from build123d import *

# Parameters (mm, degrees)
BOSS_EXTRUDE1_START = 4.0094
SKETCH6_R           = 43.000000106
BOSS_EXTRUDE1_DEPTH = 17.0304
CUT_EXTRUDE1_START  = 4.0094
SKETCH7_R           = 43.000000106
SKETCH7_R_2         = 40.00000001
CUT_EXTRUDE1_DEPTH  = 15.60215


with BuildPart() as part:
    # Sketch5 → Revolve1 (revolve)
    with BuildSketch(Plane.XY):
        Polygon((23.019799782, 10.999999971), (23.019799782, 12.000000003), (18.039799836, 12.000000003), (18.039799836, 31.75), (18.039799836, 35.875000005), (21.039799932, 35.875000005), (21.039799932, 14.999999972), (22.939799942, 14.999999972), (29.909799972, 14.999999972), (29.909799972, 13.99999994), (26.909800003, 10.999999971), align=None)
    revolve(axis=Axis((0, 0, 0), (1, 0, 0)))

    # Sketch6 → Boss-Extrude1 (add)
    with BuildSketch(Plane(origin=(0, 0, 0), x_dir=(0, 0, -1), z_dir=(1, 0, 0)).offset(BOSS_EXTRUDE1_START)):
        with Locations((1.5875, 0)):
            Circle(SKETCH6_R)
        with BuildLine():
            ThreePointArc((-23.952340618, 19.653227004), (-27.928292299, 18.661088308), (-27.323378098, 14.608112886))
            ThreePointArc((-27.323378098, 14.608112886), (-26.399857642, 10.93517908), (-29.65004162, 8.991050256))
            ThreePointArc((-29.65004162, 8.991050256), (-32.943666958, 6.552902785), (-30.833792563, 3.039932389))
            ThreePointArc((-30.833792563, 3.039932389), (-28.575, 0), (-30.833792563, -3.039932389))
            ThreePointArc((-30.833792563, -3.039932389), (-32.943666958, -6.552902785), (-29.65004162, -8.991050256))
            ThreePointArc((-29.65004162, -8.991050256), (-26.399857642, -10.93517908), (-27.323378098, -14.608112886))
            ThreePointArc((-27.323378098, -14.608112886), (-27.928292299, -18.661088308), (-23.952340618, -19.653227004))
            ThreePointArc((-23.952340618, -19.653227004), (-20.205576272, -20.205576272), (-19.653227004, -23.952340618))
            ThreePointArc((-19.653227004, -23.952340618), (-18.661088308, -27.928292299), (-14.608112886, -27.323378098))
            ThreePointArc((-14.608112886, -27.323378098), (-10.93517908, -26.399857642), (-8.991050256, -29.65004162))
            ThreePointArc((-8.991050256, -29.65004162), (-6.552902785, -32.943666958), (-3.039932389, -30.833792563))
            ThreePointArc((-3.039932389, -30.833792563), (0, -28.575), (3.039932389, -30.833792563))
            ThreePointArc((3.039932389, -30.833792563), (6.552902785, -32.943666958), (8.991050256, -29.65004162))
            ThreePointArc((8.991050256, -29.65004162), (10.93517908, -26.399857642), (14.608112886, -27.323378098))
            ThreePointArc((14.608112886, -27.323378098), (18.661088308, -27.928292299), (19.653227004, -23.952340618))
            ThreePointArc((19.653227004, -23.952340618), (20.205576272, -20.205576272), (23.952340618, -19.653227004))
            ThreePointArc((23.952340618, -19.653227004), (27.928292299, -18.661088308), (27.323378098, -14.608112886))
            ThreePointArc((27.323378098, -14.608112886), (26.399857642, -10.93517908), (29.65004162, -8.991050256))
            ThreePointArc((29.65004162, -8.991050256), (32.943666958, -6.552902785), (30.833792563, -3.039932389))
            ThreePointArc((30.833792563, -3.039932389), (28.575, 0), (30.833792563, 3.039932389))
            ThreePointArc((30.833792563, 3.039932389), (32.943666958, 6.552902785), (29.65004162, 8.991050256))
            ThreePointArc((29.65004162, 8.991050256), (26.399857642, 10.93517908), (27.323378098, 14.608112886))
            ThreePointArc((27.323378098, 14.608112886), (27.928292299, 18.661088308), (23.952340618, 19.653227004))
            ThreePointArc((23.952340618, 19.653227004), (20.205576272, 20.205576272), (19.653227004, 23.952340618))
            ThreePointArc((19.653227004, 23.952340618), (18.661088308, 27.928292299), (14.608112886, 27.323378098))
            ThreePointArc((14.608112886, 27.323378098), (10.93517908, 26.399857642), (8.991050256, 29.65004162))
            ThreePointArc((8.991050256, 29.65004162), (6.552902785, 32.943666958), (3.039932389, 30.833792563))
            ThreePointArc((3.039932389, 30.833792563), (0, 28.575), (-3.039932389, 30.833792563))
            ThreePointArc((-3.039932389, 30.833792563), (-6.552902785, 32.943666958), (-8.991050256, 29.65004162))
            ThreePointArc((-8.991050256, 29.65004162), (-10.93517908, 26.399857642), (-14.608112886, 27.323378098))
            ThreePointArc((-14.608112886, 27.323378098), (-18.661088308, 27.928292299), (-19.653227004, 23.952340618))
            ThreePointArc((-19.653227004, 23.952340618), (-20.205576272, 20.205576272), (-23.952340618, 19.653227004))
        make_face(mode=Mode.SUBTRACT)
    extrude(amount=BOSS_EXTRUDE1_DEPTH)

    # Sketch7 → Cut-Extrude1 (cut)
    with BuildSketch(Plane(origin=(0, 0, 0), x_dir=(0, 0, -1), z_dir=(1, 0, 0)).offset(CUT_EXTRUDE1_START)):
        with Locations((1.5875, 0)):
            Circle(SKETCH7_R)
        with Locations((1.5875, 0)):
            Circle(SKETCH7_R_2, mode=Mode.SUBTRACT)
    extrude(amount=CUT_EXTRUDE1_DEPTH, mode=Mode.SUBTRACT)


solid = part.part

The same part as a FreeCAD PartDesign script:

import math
import FreeCAD as App
import Part
import Sketcher
Q = App.Units.Quantity


def add_polygon(sketch, points):
    """Adds a closed chain of lines whose ends are joined by coincident constraints."""
    first, n = sketch.GeometryCount, len(points)
    for a, b in zip(points, points[1:] + points[:1]):
        sketch.addGeometry(Part.LineSegment(App.Vector(*a, 0), App.Vector(*b, 0)), False)
    for i in range(n):
        sketch.addConstraint(Sketcher.Constraint("Coincident", first + i, 2, first + (i + 1) % n, 1))

doc = App.newDocument("Part")
body = doc.addObject("PartDesign::Body", "Body")

sketch1 = body.newObject("Sketcher::SketchObject", "Sketch")
sketch1.AttachmentSupport = (doc.getObject("XY_Plane"), [""])
sketch1.MapMode = "FlatFace"
add_polygon(sketch1, [(23, 12), (23, 11), (26.9, 11), (29.9, 14), (29.9, 15), (21, 15), (21, 35.9), (18, 35.9), (18, 12)])
sketch1.addConstraint([
    Sketcher.Constraint("Vertical", 0),
    Sketcher.Constraint("Horizontal", 1),
    Sketcher.Constraint("Vertical", 3),
    Sketcher.Constraint("Horizontal", 4),
    Sketcher.Constraint("Vertical", 5),
    Sketcher.Constraint("Horizontal", 6),
    Sketcher.Constraint("Vertical", 7),
    Sketcher.Constraint("Horizontal", 8),
    Sketcher.Constraint("Equal", 0, 3),
    Sketcher.Constraint("DistanceX", 6, 2, 6, 1, Q("3 mm")),
    Sketcher.Constraint("DistanceY", 0, 2, 0, 1, Q("1 mm")),
    Sketcher.Constraint("Angle", 2, Q("45 deg")),
    Sketcher.Constraint("DistanceY", -1, 1, 0, 2, Q("11 mm")),
    Sketcher.Constraint("DistanceY", -1, 1, 2, 2, Q("14 mm")),
    Sketcher.Constraint("DistanceX", 1, 1, 1, 2, Q("3.89 mm")),
    Sketcher.Constraint("DistanceX", 4, 2, 4, 1, Q("8.87 mm")),
    Sketcher.Constraint("DistanceY", 5, 1, 5, 2, Q("20.875 mm")),
    Sketcher.Constraint("DistanceX", -1, 1, 0, 2, Q("23.0198 mm")),
])
revolution = body.newObject("PartDesign::Revolution", "Revolution")
revolution.Profile = sketch1
revolution.ReferenceAxis = (sketch1, ["H_Axis"])
revolution.Angle = 360

sketch2 = body.newObject("Sketcher::SketchObject", "Sketch001")
sketch2.AttachmentSupport = (doc.getObject("YZ_Plane"), [""])
sketch2.MapMode = "FlatFace"
sketch2.AttachmentOffset = App.Placement(App.Vector(0, 0, 4.0094), App.Rotation())
sketch2.addGeometry([
    Part.Circle(App.Vector(0, -1.6, 0), App.Vector(0, 0, 1), 43),
    Part.ArcOfCircle(Part.Circle(App.Vector(17, 25.4, 0), App.Vector(0, 0, 1), 3), math.radians(-28), math.radians(141)),
    Part.ArcOfCircle(Part.Circle(App.Vector(22.5, 22.5, 0), App.Vector(0, 0, 1), 3.2), math.radians(152), math.radians(298)),
    Part.ArcOfCircle(Part.Circle(App.Vector(25.4, 17, 0), App.Vector(0, 0, 1), 3), math.radians(-51), math.radians(118)),
    Part.ArcOfCircle(Part.Circle(App.Vector(29.3, 12.2, 0), App.Vector(0, 0, 1), 3.2), math.radians(129), math.radians(276)),
    Part.ArcOfCircle(Part.Circle(App.Vector(30, 6, 0), App.Vector(0, 0, 1), 3), math.radians(-73), math.radians(96)),
    Part.ArcOfCircle(Part.Circle(App.Vector(31.7, 0, 0), App.Vector(0, 0, 1), 3.2), math.radians(107), math.radians(253)),
    Part.ArcOfCircle(Part.Circle(App.Vector(30, -6, 0), App.Vector(0, 0, 1), 3), math.radians(-96), math.radians(73)),
    Part.ArcOfCircle(Part.Circle(App.Vector(29.3, -12.2, 0), App.Vector(0, 0, 1), 3.2), math.radians(84), math.radians(231)),
    Part.ArcOfCircle(Part.Circle(App.Vector(25.4, -17, 0), App.Vector(0, 0, 1), 3), math.radians(-118), math.radians(51)),
    Part.ArcOfCircle(Part.Circle(App.Vector(22.5, -22.5, 0), App.Vector(0, 0, 1), 3.2), math.radians(62), math.radians(208)),
    Part.ArcOfCircle(Part.Circle(App.Vector(17, -25.4, 0), App.Vector(0, 0, 1), 3), math.radians(-141), math.radians(28)),
    Part.ArcOfCircle(Part.Circle(App.Vector(12.2, -29.3, 0), App.Vector(0, 0, 1), 3.2), math.radians(39), math.radians(186)),
    Part.ArcOfCircle(Part.Circle(App.Vector(6, -30, 0), App.Vector(0, 0, 1), 3), math.radians(-163), math.radians(6)),
    Part.ArcOfCircle(Part.Circle(App.Vector(0, -31.7, 0), App.Vector(0, 0, 1), 3.2), math.radians(17), math.radians(163)),
    Part.ArcOfCircle(Part.Circle(App.Vector(-6, -30, 0), App.Vector(0, 0, 1), 3), math.radians(174), math.radians(343)),
    Part.ArcOfCircle(Part.Circle(App.Vector(-12.2, -29.3, 0), App.Vector(0, 0, 1), 3.2), math.radians(-6), math.radians(141)),
    Part.ArcOfCircle(Part.Circle(App.Vector(-17, -25.4, 0), App.Vector(0, 0, 1), 3), math.radians(152), math.radians(321)),
    Part.ArcOfCircle(Part.Circle(App.Vector(-22.5, -22.5, 0), App.Vector(0, 0, 1), 3.2), math.radians(-28), math.radians(118)),
    Part.ArcOfCircle(Part.Circle(App.Vector(-25.4, -17, 0), App.Vector(0, 0, 1), 3), math.radians(129), math.radians(298)),
    Part.ArcOfCircle(Part.Circle(App.Vector(-29.3, -12.2, 0), App.Vector(0, 0, 1), 3.2), math.radians(-51), math.radians(96)),
    Part.ArcOfCircle(Part.Circle(App.Vector(-30, -6, 0), App.Vector(0, 0, 1), 3), math.radians(107), math.radians(276)),
    Part.ArcOfCircle(Part.Circle(App.Vector(-31.7, 0, 0), App.Vector(0, 0, 1), 3.2), math.radians(-73), math.radians(73)),
    Part.ArcOfCircle(Part.Circle(App.Vector(-30, 6, 0), App.Vector(0, 0, 1), 3), math.radians(84), math.radians(253)),
    Part.ArcOfCircle(Part.Circle(App.Vector(-29.3, 12.2, 0), App.Vector(0, 0, 1), 3.2), math.radians(-96), math.radians(51)),
    Part.ArcOfCircle(Part.Circle(App.Vector(-25.4, 17, 0), App.Vector(0, 0, 1), 3), math.radians(62), math.radians(231)),
    Part.ArcOfCircle(Part.Circle(App.Vector(-22.5, 22.5, 0), App.Vector(0, 0, 1), 3.2), math.radians(-118), math.radians(28)),
    Part.ArcOfCircle(Part.Circle(App.Vector(-17, 25.4, 0), App.Vector(0, 0, 1), 3), math.radians(39), math.radians(208)),
    Part.ArcOfCircle(Part.Circle(App.Vector(-12.2, 29.3, 0), App.Vector(0, 0, 1), 3.2), math.radians(-141), math.radians(6)),
    Part.ArcOfCircle(Part.Circle(App.Vector(-6, 30, 0), App.Vector(0, 0, 1), 3), math.radians(17), math.radians(186)),
    Part.ArcOfCircle(Part.Circle(App.Vector(0, 31.7, 0), App.Vector(0, 0, 1), 3.2), math.radians(-163), math.radians(-17)),
    Part.ArcOfCircle(Part.Circle(App.Vector(6, 30, 0), App.Vector(0, 0, 1), 3), math.radians(-6), math.radians(163)),
    Part.ArcOfCircle(Part.Circle(App.Vector(12.2, 29.3, 0), App.Vector(0, 0, 1), 3.2), math.radians(174), math.radians(321)),
], False)
sketch2.addConstraint([
    Sketcher.Constraint("Tangent", 1, 1, 2, 1),
    Sketcher.Constraint("Tangent", 2, 2, 3, 2),
    Sketcher.Constraint("Tangent", 3, 1, 4, 1),
    Sketcher.Constraint("Tangent", 4, 2, 5, 2),
    Sketcher.Constraint("Tangent", 5, 1, 6, 1),
    Sketcher.Constraint("Tangent", 6, 2, 7, 2),
    Sketcher.Constraint("Tangent", 7, 1, 8, 1),
    Sketcher.Constraint("Tangent", 8, 2, 9, 2),
    Sketcher.Constraint("Tangent", 9, 1, 10, 1),
    Sketcher.Constraint("Tangent", 10, 2, 11, 2),
    Sketcher.Constraint("Tangent", 11, 1, 12, 1),
    Sketcher.Constraint("Tangent", 12, 2, 13, 2),
    Sketcher.Constraint("Tangent", 13, 1, 14, 1),
    Sketcher.Constraint("Tangent", 14, 2, 15, 2),
    Sketcher.Constraint("Tangent", 15, 1, 16, 1),
    Sketcher.Constraint("Tangent", 16, 2, 17, 2),
    Sketcher.Constraint("Tangent", 17, 1, 18, 1),
    Sketcher.Constraint("Tangent", 18, 2, 19, 2),
    Sketcher.Constraint("Tangent", 19, 1, 20, 1),
    Sketcher.Constraint("Tangent", 20, 2, 21, 2),
    Sketcher.Constraint("Tangent", 21, 1, 22, 1),
    Sketcher.Constraint("Tangent", 22, 2, 23, 2),
    Sketcher.Constraint("Tangent", 23, 1, 24, 1),
    Sketcher.Constraint("Tangent", 24, 2, 25, 2),
    Sketcher.Constraint("Tangent", 25, 1, 26, 1),
    Sketcher.Constraint("Tangent", 26, 2, 27, 2),
    Sketcher.Constraint("Tangent", 27, 1, 28, 1),
    Sketcher.Constraint("Tangent", 28, 2, 29, 2),
    Sketcher.Constraint("Tangent", 29, 1, 30, 1),
    Sketcher.Constraint("Tangent", 30, 2, 31, 2),
    Sketcher.Constraint("Tangent", 31, 1, 32, 1),
    Sketcher.Constraint("Tangent", 32, 2, 1, 2),
    Sketcher.Constraint("Equal", 1, 3),
    Sketcher.Constraint("Equal", 2, 4),
    Sketcher.Constraint("Equal", 3, 5),
    Sketcher.Constraint("Equal", 4, 6),
    Sketcher.Constraint("Equal", 5, 7),
    Sketcher.Constraint("Equal", 6, 8),
    Sketcher.Constraint("Equal", 7, 9),
    Sketcher.Constraint("Equal", 8, 10),
    Sketcher.Constraint("Equal", 9, 11),
    Sketcher.Constraint("Equal", 10, 12),
    Sketcher.Constraint("Equal", 11, 13),
    Sketcher.Constraint("Equal", 12, 14),
    Sketcher.Constraint("Equal", 13, 15),
    Sketcher.Constraint("Equal", 14, 16),
    Sketcher.Constraint("Equal", 15, 17),
    Sketcher.Constraint("Equal", 16, 18),
    Sketcher.Constraint("Equal", 17, 19),
    Sketcher.Constraint("Equal", 18, 20),
    Sketcher.Constraint("Equal", 19, 21),
    Sketcher.Constraint("Equal", 20, 22),
    Sketcher.Constraint("Equal", 21, 23),
    Sketcher.Constraint("Equal", 22, 24),
    Sketcher.Constraint("Equal", 23, 25),
    Sketcher.Constraint("Equal", 24, 26),
    Sketcher.Constraint("Equal", 25, 27),
    Sketcher.Constraint("Equal", 26, 28),
    Sketcher.Constraint("Equal", 27, 29),
    Sketcher.Constraint("Equal", 28, 30),
    Sketcher.Constraint("Equal", 29, 31),
    Sketcher.Constraint("Equal", 30, 32),
    Sketcher.Constraint("Symmetric", 1, 3, 17, 3, -1, 1),
    Sketcher.Constraint("Symmetric", 3, 3, 19, 3, -1, 1),
    Sketcher.Constraint("Symmetric", 5, 3, 21, 3, -1, 1),
    Sketcher.Constraint("Symmetric", 7, 3, 23, 3, -1, 1),
    Sketcher.Constraint("Symmetric", 9, 3, 25, 3, -1, 1),
    Sketcher.Constraint("Symmetric", 11, 3, 27, 3, -1, 1),
    Sketcher.Constraint("Symmetric", 13, 3, 29, 3, -1, 1),
    Sketcher.Constraint("Symmetric", 15, 3, 31, 3, -1, 1),
    Sketcher.Constraint("Symmetric", 13, 3, 15, 3, -2),
    Sketcher.Constraint("Symmetric", 11, 3, 17, 3, -2),
    Sketcher.Constraint("Symmetric", 9, 3, 19, 3, -2),
    Sketcher.Constraint("Symmetric", 7, 3, 21, 3, -2),
    Sketcher.Constraint("PointOnObject", 0, 3, -2),
    Sketcher.Constraint("Diameter", 0, Q("86 mm")),
    Sketcher.Constraint("Radius", 1, Q("3.048 mm")),
    Sketcher.Constraint("Radius", 2, Q("3.175 mm")),
    Sketcher.Constraint("DistanceX", -1, 1, 6, 3, Q("31.75 mm")),
    Sketcher.Constraint("DistanceY", 14, 3, -1, 1, Q("31.75 mm")),
    Sketcher.Constraint("DistanceY", 0, 3, -1, 1, Q("1.5875 mm")),
    Sketcher.Constraint("DistanceY", -1, 1, 4, 3, Q("12.150199 mm")),
    Sketcher.Constraint("DistanceX", -1, 1, 12, 3, Q("12.150199 mm")),
    Sketcher.Constraint("DistanceX", -1, 1, 1, 3, Q("16.96771 mm")),
    Sketcher.Constraint("DistanceX", -1, 1, 2, 3, Q("22.45064 mm")),
    Sketcher.Constraint("DistanceY", -1, 1, 2, 3, Q("22.45064 mm")),
    Sketcher.Constraint("DistanceY", -1, 1, 3, 3, Q("16.96771 mm")),
])
pad1 = body.newObject("PartDesign::Pad", "Pad")
pad1.Profile = sketch2
pad1.Length = 17.0304

sketch3 = body.newObject("Sketcher::SketchObject", "Sketch002")
sketch3.AttachmentSupport = (doc.getObject("YZ_Plane"), [""])
sketch3.MapMode = "FlatFace"
sketch3.AttachmentOffset = App.Placement(App.Vector(0, 0, 4.0094), App.Rotation())
sketch3.addGeometry([
    Part.Circle(App.Vector(0, -2, 0), App.Vector(0, 0, 1), 43),
    Part.Circle(App.Vector(0, -2, 0), App.Vector(0, 0, 1), 40),
], False)
sketch3.addConstraint([
    Sketcher.Constraint("Coincident", 1, 3, 0, 3),
    Sketcher.Constraint("PointOnObject", 0, 3, -2),
    Sketcher.Constraint("Diameter", 0, Q("86 mm")),
    Sketcher.Constraint("Diameter", 1, Q("80 mm")),
    Sketcher.Constraint("DistanceY", 0, 3, -1, 1, Q("1.5875 mm")),
])
pocket1 = body.newObject("PartDesign::Pocket", "Pocket")
pocket1.Profile = sketch3
pocket1.Length = 15.60215
pocket1.Reversed = True

doc.recompute()
